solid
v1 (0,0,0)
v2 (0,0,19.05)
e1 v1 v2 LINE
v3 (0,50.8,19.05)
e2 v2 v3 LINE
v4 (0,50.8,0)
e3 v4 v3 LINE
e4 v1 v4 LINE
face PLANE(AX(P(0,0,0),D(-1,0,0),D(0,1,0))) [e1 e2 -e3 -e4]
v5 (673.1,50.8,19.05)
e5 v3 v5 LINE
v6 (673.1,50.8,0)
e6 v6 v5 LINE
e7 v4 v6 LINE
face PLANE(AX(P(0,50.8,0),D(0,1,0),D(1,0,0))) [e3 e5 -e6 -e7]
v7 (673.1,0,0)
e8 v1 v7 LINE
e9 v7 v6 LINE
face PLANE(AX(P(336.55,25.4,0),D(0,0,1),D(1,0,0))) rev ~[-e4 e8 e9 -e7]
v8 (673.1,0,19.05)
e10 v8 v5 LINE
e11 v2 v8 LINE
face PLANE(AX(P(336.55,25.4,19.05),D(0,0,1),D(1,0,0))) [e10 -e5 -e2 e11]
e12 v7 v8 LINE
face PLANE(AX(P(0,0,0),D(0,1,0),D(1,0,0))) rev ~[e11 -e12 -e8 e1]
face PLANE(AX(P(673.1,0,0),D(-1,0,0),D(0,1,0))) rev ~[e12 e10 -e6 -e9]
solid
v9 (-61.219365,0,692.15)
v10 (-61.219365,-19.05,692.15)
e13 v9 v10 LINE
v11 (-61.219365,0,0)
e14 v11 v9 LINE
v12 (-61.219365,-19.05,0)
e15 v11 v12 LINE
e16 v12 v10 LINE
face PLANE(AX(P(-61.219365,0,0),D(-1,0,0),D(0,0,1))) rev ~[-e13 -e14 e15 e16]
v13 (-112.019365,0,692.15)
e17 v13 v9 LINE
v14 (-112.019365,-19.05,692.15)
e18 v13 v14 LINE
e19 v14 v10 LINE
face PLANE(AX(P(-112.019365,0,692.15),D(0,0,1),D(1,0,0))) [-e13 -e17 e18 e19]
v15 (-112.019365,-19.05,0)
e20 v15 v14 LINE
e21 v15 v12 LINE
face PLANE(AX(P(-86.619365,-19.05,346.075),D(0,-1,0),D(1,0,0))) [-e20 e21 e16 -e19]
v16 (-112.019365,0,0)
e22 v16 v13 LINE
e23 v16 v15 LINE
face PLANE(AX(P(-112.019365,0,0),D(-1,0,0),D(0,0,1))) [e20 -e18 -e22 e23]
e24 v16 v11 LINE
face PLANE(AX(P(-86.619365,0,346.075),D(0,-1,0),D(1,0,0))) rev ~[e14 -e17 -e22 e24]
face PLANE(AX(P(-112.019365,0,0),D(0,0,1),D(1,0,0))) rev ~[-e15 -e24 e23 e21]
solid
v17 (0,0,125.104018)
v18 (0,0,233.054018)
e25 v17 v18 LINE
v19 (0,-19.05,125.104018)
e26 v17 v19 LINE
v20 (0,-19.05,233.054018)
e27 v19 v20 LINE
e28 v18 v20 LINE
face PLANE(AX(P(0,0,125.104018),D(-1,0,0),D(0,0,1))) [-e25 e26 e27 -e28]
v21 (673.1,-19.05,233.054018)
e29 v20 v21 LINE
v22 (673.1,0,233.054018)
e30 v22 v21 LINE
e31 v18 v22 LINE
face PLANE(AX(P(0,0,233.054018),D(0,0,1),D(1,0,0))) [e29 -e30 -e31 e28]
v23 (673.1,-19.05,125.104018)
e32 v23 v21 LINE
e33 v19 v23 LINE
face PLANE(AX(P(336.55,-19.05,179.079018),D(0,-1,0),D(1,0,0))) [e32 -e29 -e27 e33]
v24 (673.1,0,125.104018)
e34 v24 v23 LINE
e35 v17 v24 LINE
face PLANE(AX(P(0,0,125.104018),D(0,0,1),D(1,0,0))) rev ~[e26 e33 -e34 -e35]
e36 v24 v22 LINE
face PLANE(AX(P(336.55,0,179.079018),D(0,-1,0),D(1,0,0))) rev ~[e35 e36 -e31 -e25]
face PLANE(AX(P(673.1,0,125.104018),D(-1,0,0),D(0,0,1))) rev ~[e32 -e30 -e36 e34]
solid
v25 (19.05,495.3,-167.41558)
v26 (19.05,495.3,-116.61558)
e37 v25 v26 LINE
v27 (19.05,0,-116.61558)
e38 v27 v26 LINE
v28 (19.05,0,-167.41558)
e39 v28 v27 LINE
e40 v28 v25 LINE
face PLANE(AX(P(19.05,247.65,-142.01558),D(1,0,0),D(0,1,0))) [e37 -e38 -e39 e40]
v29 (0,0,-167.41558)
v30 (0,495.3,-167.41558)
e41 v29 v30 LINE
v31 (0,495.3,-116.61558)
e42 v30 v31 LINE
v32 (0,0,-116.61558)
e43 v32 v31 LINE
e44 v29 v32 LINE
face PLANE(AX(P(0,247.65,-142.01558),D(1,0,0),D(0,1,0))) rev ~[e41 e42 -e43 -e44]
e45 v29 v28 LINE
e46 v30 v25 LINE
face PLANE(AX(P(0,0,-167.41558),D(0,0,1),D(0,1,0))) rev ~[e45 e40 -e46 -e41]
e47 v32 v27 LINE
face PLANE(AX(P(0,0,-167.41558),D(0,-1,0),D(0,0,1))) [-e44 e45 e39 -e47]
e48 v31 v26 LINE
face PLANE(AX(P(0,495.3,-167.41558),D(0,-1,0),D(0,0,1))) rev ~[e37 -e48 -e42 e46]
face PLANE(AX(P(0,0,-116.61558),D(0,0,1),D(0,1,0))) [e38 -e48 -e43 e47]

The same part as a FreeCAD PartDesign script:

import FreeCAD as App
import Part
import Sketcher

V = App.Vector
Q = App.Units.Quantity

doc = App.newDocument("Part")
params = doc.addObject("Spreadsheet::Sheet", "Params")
for row, (alias, value) in enumerate([
    ("sketch1_height", "2 in"),
    ("sketch1_width", "26.5 in"),
    ("pad1_length", "0.75 in"),
    ("sketch2_height", "2 in"),
    ("sketch2_width", "19.5 in"),
    ("pad2_length", "0.75 in"),
    ("sketch3_width", "2 in"),
    ("sketch3_height", "27.25 in"),
    ("pad3_length", "0.75 in"),
    ("sketch4_width", "26.5 in"),
    ("sketch4_height", "4.25 in"),
    ("pad4_length", "0.75 in"),
], start=1):
    params.set(f"A{row}", alias)
    params.set(f"B{row}", "=" + value)
    params.setAlias(f"B{row}", alias)

body = doc.addObject("PartDesign::Body", "Body")

sketch1 = body.newObject("Sketcher::SketchObject", "Sketch")
sketch1.AttachmentSupport = (doc.getObject("XY_Plane"), [""])
sketch1.MapMode = "FlatFace"
sketch1.addGeometry(Part.LineSegment(V(0, 50.8, 0), V(0, 0, 0)), False)
sketch1.addGeometry(Part.LineSegment(V(0, 0, 0), V(673.1, 0, 0)), False)
sketch1.addGeometry(Part.LineSegment(V(673.1, 0, 0), V(673.1, 50.8, 0)), False)
sketch1.addGeometry(Part.LineSegment(V(673.1, 50.8, 0), V(0, 50.8, 0)), False)
sketch1.addConstraint(Sketcher.Constraint("Coincident", 0, 2, 1, 1))
sketch1.addConstraint(Sketcher.Constraint("Coincident", 1, 2, 2, 1))
sketch1.addConstraint(Sketcher.Constraint("Coincident", 2, 2, 3, 1))
sketch1.addConstraint(Sketcher.Constraint("Coincident", 3, 2, 0, 1))
sketch1.addConstraint(Sketcher.Constraint("Vertical", 0))
sketch1.addConstraint(Sketcher.Constraint("Horizontal", 1))
sketch1.addConstraint(Sketcher.Constraint("Vertical", 2))
sketch1.addConstraint(Sketcher.Constraint("Horizontal", 3))
sketch1.addConstraint(Sketcher.Constraint("Coincident", 0, 2, -1, 1))
sketch1.addConstraint(Sketcher.Constraint("DistanceY", 0, 2, 0, 1, Q("2 in")))
sketch1.addConstraint(Sketcher.Constraint("DistanceX", 1, 1, 1, 2, Q("26.5 in")))
sketch1.setExpression("Constraints[9]", "Params.sketch1_height")
sketch1.setExpression("Constraints[10]", "Params.sketch1_width")
pad1 = body.newObject("PartDesign::Pad", "Pad")
pad1.Profile = sketch1
pad1.setExpression("Length", "Params.pad1_length")
body2 = doc.addObject("PartDesign::Body", "Body001")

sketch2 = body2.newObject("Sketcher::SketchObject", "Sketch001")
sketch2.AttachmentSupport = (doc.getObject("YZ_Plane001"), [""])
sketch2.MapMode = "FlatFace"
sketch2.addGeometry(Part.LineSegment(V(0, -116.61558, 0), V(0, -167.41558, 0)), False)
sketch2.addGeometry(Part.LineSegment(V(0, -167.41558, 0), V(495.3, -167.41558, 0)), False)
sketch2.addGeometry(Part.LineSegment(V(495.3, -167.41558, 0), V(495.3, -116.61558, 0)), False)
sketch2.addGeometry(Part.LineSegment(V(495.3, -116.61558, 0), V(0, -116.61558, 0)), False)
sketch2.addConstraint(Sketcher.Constraint("Coincident", 0, 2, 1, 1))
sketch2.addConstraint(Sketcher.Constraint("Coincident", 1, 2, 2, 1))
sketch2.addConstraint(Sketcher.Constraint("Coincident", 2, 2, 3, 1))
sketch2.addConstraint(Sketcher.Constraint("Coincident", 3, 2, 0, 1))
sketch2.addConstraint(Sketcher.Constraint("Vertical", 0))
sketch2.addConstraint(Sketcher.Constraint("Horizontal", 1))
sketch2.addConstraint(Sketcher.Constraint("Vertical", 2))
sketch2.addConstraint(Sketcher.Constraint("Horizontal", 3))
sketch2.addConstraint(Sketcher.Constraint("PointOnObject", 0, 2, -2))
sketch2.addConstraint(Sketcher.Constraint("DistanceY", 0, 2, 0, 1, Q("2 in")))
sketch2.addConstraint(Sketcher.Constraint("DistanceX", 1, 1, 1, 2, Q("19.5 in")))
sketch2.addConstraint(Sketcher.Constraint("DistanceY", 0, 2, -1, 1, 167.41558))
sketch2.setExpression("Constraints[9]", "Params.sketch2_height")
sketch2.setExpression("Constraints[10]", "Params.sketch2_width")
pad2 = body2.newObject("PartDesign::Pad", "Pad001")
pad2.Profile = sketch2
pad2.setExpression("Length", "Params.pad2_length")
body3 = doc.addObject("PartDesign::Body", "Body002")

sketch3 = body3.newObject("Sketcher::SketchObject", "Sketch002")
sketch3.AttachmentSupport = (doc.getObject("XZ_Plane002"), [""])
sketch3.MapMode = "FlatFace"
sketch3.addGeometry(Part.LineSegment(V(-112.019365, 692.15, 0), V(-112.019365, 0, 0)), False)
sketch3.addGeometry(Part.LineSegment(V(-112.019365, 0, 0), V(-61.219365, 0, 0)), False)
sketch3.addGeometry(Part.LineSegment(V(-61.219365, 0, 0), V(-61.219365, 692.15, 0)), False)
sketch3.addGeometry(Part.LineSegment(V(-61.219365, 692.15, 0), V(-112.019365, 692.15, 0)), False)
sketch3.addConstraint(Sketcher.Constraint("Coincident", 0, 2, 1, 1))
sketch3.addConstraint(Sketcher.Constraint("Coincident", 1, 2, 2, 1))
sketch3.addConstraint(Sketcher.Constraint("Coincident", 2, 2, 3, 1))
sketch3.addConstraint(Sketcher.Constraint("Coincident", 3, 2, 0, 1))
sketch3.addConstraint(Sketcher.Constraint("Vertical", 0))
sketch3.addConstraint(Sketcher.Constraint("Horizontal", 1))
sketch3.addConstraint(Sketcher.Constraint("Vertical", 2))
sketch3.addConstraint(Sketcher.Constraint("Horizontal", 3))
sketch3.addConstraint(Sketcher.Constraint("PointOnObject", 0, 2, -1))
sketch3.addConstraint(Sketcher.Constraint("DistanceX", 1, 1, 1, 2, Q("2 in")))
sketch3.addConstraint(Sketcher.Constraint("DistanceY", 0, 2, 0, 1, Q("27.25 in")))
sketch3.addConstraint(Sketcher.Constraint("DistanceX", 0, 2, -1, 1, 112.019365))
sketch3.setExpression("Constraints[9]", "Params.sketch3_width")
sketch3.setExpression("Constraints[10]", "Params.sketch3_height")
pad3 = body3.newObject("PartDesign::Pad", "Pad002")
pad3.Profile = sketch3
pad3.setExpression("Length", "Params.pad3_length")
body4 = doc.addObject("PartDesign::Body", "Body003")

sketch4 = body4.newObject("Sketcher::SketchObject", "Sketch003")
sketch4.AttachmentSupport = (doc.getObject("XZ_Plane003"), [""])
sketch4.MapMode = "FlatFace"
sketch4.addGeometry(Part.LineSegment(V(0, 233.054018, 0), V(0, 125.104018, 0)), False)
sketch4.addGeometry(Part.LineSegment(V(0, 125.104018, 0), V(673.1, 125.104018, 0)), False)
sketch4.addGeometry(Part.LineSegment(V(673.1, 125.104018, 0), V(673.1, 233.054018, 0)), False)
sketch4.addGeometry(Part.LineSegment(V(673.1, 233.054018, 0), V(0, 233.054018, 0)), False)
sketch4.addConstraint(Sketcher.Constraint("Coincident", 0, 2, 1, 1))
sketch4.addConstraint(Sketcher.Constraint("Coincident", 1, 2, 2, 1))
sketch4.addConstraint(Sketcher.Constraint("Coincident", 2, 2, 3, 1))
sketch4.addConstraint(Sketcher.Constraint("Coincident", 3, 2, 0, 1))
sketch4.addConstraint(Sketcher.Constraint("Vertical", 0))
sketch4.addConstraint(Sketcher.Constraint("Horizontal", 1))
sketch4.addConstraint(Sketcher.Constraint("Vertical", 2))
sketch4.addConstraint(Sketcher.Constraint("Horizontal", 3))
sketch4.addConstraint(Sketcher.Constraint("PointOnObject", 0, 2, -2))
sketch4.addConstraint(Sketcher.Constraint("DistanceX", 1, 1, 1, 2, Q("26.5 in")))
sketch4.addConstraint(Sketcher.Constraint("DistanceY", 0, 2, 0, 1, Q("4.25 in")))
sketch4.addConstraint(Sketcher.Constraint("DistanceY", -1, 1, 2, 2, 233.054018))
sketch4.setExpression("Constraints[9]", "Params.sketch4_width")
sketch4.setExpression("Constraints[10]", "Params.sketch4_height")
pad4 = body4.newObject("PartDesign::Pad", "Pad003")
pad4.Profile = sketch4
pad4.setExpression("Length", "Params.pad4_length")

doc.recompute()
